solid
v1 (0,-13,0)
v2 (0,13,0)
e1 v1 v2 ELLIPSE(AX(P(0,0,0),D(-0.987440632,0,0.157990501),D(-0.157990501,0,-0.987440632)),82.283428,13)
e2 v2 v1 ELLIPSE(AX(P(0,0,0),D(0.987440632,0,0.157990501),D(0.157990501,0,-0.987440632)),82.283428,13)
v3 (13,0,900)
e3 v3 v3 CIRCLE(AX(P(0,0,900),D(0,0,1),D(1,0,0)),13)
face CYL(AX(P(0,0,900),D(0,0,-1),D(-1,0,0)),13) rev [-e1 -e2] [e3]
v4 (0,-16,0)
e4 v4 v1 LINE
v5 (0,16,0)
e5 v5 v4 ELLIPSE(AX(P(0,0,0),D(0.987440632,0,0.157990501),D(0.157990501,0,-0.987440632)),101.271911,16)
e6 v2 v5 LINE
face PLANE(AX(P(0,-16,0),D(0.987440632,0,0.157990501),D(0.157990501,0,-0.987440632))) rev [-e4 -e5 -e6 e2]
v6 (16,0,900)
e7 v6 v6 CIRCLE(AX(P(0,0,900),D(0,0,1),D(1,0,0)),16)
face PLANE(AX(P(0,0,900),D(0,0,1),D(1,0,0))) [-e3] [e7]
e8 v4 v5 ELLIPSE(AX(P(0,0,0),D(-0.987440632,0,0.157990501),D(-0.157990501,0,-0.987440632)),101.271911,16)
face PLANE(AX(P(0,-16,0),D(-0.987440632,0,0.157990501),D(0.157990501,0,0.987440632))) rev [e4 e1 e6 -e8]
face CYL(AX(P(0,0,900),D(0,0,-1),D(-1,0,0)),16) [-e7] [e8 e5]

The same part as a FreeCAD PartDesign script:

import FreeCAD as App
import Part
import Sketcher
from FreeCAD import Vector
Q = App.Units.Quantity


def add_polygon(sketch, points):
    """Adds a closed chain of lines whose ends are joined by coincident constraints."""
    first, n = sketch.GeometryCount, len(points)
    for a, b in zip(points, points[1:] + points[:1]):
        sketch.addGeometry(Part.LineSegment(App.Vector(*a, 0), App.Vector(*b, 0)), False)
    for i in range(n):
        sketch.addConstraint(Sketcher.Constraint("Coincident", first + i, 2, first + (i + 1) % n, 1))

doc = App.newDocument("Part")
body = doc.addObject("PartDesign::Body", "Body")

sketch1 = doc.addObject("Sketcher::SketchObject", "Sketch")
body.addObject(sketch1)
sketch1.AttachmentSupport = (doc.XY_Plane, [""])
sketch1.MapMode = "FlatFace"
sketch1.addGeometry([
    Part.Circle(Vector(0, 0, 0), Vector(0, 0, 1), 16),
    Part.Circle(Vector(0, 0, 0), Vector(0, 0, 1), 13),
], False)
sketch1.addConstraint([
    Sketcher.Constraint("Coincident", 0, 3, -1, 1),
    Sketcher.Constraint("Coincident", 1, 3, -1, 1),
    Sketcher.Constraint("Diameter", 0, Q("32 mm")),
    Sketcher.Constraint("Diameter", 1, Q("26 mm")),
])
pad1 = doc.addObject("PartDesign::Pad", "Pad")
body.addObject(pad1)
pad1.Profile = sketch1
pad1.Length = 900

sketch2 = doc.addObject("Sketcher::SketchObject", "Sketch001")
body.addObject(sketch2)
sketch2.AttachmentSupport = (doc.XZ_Plane, [""])
sketch2.MapMode = "FlatFace"
add_polygon(sketch2, [(0, 0), (16, 100), (16, 0)])
sketch2.addConstraint([
    Sketcher.Constraint("Vertical", 1),
    Sketcher.Constraint("Horizontal", 2),
    Sketcher.Constraint("Coincident", 2, 2, -1, 1),
    Sketcher.Constraint("DistanceX", 2, 2, 2, 1, Q("16 mm")),
    Sketcher.Constraint("DistanceY", 1, 2, 1, 1, Q("100 mm")),
])
pocket1 = doc.addObject("PartDesign::Pocket", "Pocket")
body.addObject(pocket1)
pocket1.Profile = sketch2
pocket1.Type = "ThroughAll"
pocket1.Midplane = True

sketch3 = doc.addObject("Sketcher::SketchObject", "Sketch002")
body.addObject(sketch3)
sketch3.AttachmentSupport = (doc.XZ_Plane, [""])
sketch3.MapMode = "FlatFace"
add_polygon(sketch3, [(-16, 100), (0, 0), (-16, 0)])
sketch3.addConstraint([
    Sketcher.Constraint("Horizontal", 1),
    Sketcher.Constraint("Vertical", 2),
    Sketcher.Constraint("Coincident", 0, 2, -1, 1),
    Sketcher.Constraint("DistanceX", 1, 2, 1, 1, Q("16 mm")),
    Sketcher.Constraint("DistanceY", 2, 1, 2, 2, Q("100 mm")),
])
pocket2 = doc.addObject("PartDesign::Pocket", "Pocket001")
body.addObject(pocket2)
pocket2.Profile = sketch3
pocket2.Type = "ThroughAll"
pocket2.Midplane = True

doc.recompute()
